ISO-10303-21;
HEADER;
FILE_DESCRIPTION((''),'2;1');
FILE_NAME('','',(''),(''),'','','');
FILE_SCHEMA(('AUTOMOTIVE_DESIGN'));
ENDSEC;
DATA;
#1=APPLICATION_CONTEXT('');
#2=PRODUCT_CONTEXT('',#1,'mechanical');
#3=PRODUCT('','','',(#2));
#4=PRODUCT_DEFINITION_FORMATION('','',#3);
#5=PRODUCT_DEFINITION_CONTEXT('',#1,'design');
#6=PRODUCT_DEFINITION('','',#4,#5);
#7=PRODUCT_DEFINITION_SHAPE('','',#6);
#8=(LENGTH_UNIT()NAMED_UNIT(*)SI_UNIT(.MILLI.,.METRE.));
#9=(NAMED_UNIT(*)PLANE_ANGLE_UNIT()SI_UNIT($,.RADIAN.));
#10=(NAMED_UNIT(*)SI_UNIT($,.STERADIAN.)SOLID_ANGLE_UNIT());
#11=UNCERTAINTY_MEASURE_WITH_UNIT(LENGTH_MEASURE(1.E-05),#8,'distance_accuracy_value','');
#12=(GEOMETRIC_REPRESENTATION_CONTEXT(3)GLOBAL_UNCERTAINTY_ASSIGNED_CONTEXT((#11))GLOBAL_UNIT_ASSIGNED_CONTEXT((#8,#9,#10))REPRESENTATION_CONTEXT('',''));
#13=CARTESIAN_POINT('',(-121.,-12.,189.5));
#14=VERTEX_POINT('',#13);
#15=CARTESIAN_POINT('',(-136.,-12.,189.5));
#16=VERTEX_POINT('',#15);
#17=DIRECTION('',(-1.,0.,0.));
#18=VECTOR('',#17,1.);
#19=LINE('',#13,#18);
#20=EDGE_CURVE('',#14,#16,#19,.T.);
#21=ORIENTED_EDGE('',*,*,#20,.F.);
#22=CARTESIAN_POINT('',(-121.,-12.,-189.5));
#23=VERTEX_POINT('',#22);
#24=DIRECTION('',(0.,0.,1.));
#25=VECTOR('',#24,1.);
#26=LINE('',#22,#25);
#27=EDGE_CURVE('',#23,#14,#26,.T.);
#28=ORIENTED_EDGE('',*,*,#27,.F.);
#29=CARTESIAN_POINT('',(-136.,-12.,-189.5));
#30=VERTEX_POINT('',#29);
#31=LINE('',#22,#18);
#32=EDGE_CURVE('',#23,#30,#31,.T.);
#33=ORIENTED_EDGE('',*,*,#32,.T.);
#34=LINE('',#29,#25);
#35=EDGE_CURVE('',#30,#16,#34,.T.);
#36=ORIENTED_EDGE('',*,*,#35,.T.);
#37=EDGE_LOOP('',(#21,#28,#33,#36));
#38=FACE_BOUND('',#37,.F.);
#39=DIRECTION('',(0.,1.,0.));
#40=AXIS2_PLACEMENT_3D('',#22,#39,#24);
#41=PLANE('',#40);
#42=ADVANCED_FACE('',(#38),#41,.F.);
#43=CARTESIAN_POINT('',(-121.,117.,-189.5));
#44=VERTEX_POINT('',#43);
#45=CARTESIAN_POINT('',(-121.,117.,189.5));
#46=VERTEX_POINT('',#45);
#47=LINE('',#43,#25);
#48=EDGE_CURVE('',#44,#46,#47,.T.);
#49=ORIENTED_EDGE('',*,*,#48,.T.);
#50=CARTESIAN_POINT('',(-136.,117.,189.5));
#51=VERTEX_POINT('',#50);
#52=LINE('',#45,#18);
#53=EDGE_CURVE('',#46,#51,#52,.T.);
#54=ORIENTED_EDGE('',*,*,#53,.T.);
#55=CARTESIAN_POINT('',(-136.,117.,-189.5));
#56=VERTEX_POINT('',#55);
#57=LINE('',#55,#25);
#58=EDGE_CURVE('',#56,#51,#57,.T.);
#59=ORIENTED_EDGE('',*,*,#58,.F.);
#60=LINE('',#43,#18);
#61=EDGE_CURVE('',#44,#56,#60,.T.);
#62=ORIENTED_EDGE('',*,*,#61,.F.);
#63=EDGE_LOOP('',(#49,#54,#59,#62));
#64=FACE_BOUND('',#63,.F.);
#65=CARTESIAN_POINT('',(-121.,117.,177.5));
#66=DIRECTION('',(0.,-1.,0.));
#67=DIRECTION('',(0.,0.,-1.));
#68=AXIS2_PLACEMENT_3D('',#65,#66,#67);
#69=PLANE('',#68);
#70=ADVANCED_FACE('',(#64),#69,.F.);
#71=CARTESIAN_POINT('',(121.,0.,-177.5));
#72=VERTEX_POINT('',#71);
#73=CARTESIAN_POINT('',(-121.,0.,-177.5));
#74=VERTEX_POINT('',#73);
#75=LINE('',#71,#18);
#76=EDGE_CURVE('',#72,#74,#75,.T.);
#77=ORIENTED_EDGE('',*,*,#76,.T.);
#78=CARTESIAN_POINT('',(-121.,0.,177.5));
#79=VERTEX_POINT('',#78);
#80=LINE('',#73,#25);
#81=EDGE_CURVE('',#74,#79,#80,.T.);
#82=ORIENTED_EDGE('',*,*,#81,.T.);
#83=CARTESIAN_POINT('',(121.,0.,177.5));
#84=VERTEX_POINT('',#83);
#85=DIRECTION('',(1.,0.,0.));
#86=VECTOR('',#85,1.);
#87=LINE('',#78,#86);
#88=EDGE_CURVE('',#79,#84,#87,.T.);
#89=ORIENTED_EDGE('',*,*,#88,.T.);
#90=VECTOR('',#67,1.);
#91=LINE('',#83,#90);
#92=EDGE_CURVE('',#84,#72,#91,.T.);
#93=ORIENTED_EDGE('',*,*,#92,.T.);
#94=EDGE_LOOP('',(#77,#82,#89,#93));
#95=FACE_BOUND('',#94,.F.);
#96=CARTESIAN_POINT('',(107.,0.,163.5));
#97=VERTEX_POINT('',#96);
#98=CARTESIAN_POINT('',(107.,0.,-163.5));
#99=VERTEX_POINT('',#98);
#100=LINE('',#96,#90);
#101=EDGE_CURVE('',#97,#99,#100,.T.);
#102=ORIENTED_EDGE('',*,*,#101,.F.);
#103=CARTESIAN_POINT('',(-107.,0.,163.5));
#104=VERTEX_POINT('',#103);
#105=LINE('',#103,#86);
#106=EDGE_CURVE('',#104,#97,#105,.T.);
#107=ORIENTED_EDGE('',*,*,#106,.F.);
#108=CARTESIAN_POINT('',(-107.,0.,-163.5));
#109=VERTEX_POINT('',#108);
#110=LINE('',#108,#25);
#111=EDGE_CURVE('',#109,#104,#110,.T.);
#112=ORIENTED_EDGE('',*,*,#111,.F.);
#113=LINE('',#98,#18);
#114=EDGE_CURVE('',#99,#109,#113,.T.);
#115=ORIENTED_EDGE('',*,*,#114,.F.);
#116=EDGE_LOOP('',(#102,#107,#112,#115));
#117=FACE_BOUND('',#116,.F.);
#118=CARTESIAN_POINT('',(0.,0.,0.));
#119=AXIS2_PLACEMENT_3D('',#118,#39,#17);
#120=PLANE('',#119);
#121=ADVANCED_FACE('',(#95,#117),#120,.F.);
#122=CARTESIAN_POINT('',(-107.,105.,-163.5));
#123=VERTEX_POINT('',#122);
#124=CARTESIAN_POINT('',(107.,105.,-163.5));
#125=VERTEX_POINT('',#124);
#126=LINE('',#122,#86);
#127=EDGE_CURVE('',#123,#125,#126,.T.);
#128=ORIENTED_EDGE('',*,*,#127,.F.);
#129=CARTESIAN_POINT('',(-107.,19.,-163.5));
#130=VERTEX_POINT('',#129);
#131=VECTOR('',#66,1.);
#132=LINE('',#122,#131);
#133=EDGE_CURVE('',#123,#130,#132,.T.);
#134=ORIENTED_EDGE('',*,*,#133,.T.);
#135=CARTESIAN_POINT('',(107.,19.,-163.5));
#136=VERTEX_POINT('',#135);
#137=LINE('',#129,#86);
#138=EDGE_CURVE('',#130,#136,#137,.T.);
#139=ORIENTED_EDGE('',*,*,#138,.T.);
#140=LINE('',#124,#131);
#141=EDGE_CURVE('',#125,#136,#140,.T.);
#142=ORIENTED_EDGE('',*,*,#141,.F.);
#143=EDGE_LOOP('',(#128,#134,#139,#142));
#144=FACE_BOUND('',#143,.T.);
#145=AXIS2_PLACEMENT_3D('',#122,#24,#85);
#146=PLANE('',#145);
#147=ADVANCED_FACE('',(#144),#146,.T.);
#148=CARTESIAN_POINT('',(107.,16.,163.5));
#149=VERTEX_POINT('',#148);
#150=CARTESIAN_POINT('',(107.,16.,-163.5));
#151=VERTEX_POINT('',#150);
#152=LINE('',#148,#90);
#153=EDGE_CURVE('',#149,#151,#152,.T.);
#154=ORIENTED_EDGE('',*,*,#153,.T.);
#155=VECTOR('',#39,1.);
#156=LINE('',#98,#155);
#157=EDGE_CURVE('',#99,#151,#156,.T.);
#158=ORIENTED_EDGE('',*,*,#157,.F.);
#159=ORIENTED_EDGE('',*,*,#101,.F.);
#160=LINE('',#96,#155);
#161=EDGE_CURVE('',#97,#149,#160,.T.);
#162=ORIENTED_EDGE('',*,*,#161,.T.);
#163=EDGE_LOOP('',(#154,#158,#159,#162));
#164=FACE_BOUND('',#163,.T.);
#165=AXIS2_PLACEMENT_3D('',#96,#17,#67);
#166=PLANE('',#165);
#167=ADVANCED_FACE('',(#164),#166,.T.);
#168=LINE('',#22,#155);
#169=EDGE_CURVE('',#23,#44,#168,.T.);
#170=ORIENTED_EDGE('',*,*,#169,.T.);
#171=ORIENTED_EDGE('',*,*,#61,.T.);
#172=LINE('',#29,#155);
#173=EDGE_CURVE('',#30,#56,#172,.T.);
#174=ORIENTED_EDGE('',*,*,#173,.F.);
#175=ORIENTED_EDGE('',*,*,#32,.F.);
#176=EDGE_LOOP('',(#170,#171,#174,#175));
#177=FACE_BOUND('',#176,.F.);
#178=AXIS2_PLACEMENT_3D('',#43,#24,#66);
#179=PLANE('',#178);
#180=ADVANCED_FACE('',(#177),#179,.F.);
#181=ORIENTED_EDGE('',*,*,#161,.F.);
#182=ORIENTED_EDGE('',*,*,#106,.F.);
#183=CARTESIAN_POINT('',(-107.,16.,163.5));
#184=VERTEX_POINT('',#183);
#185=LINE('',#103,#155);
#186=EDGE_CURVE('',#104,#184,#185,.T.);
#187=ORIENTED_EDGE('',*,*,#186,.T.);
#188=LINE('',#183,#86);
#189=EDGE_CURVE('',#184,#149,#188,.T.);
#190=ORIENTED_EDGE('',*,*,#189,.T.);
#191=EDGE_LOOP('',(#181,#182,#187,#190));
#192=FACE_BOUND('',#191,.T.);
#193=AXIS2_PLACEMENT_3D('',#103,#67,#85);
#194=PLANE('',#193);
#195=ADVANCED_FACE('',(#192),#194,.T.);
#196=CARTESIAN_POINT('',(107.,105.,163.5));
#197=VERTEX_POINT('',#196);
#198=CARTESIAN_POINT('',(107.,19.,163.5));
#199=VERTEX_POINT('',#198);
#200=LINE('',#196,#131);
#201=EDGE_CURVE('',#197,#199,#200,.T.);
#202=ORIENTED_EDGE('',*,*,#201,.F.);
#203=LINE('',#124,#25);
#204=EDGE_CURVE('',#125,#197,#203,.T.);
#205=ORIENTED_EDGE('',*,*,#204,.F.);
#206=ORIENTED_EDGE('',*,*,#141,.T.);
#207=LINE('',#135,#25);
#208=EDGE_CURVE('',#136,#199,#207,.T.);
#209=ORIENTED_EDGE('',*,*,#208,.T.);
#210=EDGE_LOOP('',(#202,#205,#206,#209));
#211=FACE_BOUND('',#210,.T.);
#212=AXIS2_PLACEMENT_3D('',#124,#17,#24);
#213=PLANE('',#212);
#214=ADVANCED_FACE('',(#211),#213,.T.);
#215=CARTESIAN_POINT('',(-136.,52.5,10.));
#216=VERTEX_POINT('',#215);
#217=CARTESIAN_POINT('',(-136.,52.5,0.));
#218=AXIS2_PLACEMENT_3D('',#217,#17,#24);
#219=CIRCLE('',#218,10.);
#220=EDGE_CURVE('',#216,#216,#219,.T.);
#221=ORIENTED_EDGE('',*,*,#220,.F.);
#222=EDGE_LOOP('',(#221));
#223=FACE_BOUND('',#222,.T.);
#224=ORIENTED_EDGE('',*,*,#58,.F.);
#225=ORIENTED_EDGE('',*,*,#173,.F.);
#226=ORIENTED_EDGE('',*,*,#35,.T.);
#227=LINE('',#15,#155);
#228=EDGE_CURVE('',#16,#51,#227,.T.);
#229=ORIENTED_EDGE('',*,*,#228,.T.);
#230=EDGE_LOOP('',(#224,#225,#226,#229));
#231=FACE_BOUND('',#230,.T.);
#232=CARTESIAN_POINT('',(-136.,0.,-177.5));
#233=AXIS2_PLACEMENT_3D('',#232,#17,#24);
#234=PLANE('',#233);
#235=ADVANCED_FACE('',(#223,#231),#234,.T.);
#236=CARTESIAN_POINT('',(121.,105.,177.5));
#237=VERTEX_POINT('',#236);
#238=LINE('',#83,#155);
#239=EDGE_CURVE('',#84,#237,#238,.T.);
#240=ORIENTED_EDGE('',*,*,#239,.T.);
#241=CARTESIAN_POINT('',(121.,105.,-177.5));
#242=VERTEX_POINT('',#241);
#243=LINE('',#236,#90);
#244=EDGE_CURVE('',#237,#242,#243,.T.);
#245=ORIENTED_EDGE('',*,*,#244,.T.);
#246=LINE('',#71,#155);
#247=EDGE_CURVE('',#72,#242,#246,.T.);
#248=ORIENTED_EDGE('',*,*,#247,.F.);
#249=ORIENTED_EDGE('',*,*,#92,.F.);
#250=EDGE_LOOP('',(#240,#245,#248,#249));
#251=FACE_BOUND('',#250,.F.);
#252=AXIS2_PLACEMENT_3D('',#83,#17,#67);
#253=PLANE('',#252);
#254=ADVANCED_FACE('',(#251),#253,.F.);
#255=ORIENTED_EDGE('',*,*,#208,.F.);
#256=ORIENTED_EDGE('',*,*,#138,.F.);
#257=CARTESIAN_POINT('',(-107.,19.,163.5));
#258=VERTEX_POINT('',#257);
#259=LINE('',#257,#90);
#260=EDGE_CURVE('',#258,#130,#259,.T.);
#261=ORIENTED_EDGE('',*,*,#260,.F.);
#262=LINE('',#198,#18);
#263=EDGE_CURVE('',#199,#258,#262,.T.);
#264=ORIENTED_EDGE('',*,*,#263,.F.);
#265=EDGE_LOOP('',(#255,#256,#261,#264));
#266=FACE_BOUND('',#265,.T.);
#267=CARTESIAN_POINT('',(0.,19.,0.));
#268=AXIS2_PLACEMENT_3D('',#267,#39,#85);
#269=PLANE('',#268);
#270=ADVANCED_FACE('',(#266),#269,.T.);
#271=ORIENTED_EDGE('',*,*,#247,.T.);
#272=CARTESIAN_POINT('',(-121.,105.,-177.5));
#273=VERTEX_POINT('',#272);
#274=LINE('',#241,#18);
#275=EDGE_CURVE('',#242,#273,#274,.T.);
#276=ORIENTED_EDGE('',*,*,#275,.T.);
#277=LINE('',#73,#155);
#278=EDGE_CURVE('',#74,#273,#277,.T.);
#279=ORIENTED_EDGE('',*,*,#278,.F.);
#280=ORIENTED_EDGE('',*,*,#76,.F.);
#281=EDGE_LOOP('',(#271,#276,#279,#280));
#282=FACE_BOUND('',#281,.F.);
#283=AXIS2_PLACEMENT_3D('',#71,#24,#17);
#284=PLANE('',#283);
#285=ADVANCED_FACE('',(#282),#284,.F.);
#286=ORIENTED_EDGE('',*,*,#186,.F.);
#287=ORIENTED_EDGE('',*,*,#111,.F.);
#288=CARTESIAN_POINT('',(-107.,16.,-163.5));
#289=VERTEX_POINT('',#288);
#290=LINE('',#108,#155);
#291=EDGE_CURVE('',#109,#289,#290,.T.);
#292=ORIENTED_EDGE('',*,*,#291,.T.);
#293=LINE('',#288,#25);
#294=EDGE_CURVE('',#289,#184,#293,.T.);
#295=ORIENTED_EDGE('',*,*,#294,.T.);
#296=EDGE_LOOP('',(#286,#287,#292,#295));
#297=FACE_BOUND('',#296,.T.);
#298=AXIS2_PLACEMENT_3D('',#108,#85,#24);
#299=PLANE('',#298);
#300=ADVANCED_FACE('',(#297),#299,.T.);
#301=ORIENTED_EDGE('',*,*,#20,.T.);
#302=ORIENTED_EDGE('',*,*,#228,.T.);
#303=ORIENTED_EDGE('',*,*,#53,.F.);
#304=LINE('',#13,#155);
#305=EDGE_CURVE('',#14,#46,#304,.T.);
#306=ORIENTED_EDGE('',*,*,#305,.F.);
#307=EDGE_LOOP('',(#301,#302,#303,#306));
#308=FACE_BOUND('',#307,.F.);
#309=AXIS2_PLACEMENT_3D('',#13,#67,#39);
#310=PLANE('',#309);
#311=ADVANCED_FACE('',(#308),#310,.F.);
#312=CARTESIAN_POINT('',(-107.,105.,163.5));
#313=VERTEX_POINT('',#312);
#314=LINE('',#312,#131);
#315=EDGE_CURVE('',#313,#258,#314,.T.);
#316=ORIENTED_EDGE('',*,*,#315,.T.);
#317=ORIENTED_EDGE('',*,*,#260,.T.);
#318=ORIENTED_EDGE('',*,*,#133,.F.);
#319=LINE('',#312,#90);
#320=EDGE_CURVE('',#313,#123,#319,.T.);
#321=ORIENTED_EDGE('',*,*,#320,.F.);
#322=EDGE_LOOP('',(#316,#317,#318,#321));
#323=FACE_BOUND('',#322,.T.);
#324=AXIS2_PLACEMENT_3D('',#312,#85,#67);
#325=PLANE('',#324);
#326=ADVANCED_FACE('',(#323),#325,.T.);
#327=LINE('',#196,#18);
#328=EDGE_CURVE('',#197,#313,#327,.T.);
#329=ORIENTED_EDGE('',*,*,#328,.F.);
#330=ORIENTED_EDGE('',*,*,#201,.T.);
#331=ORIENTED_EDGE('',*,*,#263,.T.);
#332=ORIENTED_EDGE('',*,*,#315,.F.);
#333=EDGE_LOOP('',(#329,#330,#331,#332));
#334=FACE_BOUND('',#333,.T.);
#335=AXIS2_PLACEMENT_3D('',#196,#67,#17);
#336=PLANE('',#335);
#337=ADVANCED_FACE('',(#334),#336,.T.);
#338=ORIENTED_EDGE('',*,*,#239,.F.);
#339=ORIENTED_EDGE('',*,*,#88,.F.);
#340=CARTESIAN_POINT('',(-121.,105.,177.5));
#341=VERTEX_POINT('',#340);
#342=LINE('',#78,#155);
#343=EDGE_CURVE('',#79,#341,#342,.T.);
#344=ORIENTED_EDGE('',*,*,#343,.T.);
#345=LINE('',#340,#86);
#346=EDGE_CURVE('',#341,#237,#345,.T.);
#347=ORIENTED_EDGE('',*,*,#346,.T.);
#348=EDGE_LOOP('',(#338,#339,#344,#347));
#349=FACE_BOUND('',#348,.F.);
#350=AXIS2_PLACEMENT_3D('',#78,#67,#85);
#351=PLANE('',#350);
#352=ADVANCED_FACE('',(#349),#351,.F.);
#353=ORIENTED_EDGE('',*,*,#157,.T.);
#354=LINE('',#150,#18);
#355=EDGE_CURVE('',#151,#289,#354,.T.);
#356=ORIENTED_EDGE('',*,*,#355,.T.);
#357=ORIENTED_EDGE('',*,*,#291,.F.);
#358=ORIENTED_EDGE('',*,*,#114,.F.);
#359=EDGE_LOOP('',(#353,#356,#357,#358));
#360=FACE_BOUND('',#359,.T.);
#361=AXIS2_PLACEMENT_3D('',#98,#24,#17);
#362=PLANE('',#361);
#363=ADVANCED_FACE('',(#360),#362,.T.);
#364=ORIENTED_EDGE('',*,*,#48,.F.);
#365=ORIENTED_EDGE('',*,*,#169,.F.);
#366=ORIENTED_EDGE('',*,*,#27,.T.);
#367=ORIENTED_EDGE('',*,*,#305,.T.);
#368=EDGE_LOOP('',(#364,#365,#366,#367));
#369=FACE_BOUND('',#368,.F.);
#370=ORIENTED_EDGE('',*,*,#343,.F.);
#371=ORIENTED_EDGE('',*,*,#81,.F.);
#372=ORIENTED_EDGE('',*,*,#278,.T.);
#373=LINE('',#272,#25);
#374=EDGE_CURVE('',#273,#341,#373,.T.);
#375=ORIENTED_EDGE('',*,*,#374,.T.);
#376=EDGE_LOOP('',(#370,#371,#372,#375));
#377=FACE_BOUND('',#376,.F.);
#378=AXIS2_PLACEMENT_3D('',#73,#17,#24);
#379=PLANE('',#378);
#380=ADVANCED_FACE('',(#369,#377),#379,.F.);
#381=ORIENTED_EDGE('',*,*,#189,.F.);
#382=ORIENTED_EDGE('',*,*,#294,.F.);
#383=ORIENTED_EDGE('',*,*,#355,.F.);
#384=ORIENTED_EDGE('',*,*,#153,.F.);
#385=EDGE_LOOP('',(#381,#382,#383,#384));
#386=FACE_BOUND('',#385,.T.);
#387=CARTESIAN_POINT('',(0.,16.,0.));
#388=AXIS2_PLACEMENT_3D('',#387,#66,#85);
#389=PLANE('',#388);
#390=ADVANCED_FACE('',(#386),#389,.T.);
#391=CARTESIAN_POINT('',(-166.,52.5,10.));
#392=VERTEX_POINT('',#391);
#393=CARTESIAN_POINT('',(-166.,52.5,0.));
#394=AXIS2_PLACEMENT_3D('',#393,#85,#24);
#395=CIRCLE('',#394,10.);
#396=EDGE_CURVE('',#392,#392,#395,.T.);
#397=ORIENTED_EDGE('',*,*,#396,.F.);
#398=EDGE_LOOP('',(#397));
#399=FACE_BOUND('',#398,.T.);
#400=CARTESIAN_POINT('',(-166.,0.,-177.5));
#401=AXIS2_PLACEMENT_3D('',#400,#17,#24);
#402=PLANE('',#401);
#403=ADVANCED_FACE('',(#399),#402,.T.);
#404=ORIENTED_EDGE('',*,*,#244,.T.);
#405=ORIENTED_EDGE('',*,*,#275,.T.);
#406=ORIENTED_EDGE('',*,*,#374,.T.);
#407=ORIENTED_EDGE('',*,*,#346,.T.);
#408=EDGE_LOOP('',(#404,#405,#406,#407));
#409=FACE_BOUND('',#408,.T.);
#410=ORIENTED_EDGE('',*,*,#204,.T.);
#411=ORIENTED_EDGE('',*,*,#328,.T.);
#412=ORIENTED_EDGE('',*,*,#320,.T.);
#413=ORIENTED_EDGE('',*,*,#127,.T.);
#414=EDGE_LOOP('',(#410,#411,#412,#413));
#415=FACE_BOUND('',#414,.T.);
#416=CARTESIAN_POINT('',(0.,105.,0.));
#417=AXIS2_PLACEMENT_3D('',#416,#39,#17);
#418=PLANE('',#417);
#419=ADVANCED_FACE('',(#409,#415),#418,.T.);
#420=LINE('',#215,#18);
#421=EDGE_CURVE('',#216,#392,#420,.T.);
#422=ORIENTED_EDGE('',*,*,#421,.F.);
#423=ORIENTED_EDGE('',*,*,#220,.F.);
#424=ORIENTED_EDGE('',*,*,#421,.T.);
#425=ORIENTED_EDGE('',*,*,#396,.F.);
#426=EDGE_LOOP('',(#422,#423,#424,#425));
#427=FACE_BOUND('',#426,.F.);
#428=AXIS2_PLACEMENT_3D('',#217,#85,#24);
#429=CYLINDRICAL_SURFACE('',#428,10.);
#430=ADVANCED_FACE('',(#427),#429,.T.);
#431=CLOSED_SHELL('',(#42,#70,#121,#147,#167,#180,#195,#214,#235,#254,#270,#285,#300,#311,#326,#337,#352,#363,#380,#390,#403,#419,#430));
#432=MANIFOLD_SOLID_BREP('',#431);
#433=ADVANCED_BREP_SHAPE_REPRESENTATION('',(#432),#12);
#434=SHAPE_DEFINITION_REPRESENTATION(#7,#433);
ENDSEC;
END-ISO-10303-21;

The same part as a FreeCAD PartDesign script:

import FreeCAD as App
import Part
import Sketcher


def add_polygon(sketch, points):
    """Adds a closed chain of lines whose ends are joined by coincident constraints."""
    first, n = sketch.GeometryCount, len(points)
    for a, b in zip(points, points[1:] + points[:1]):
        sketch.addGeometry(Part.LineSegment(App.Vector(*a, 0), App.Vector(*b, 0)), False)
    for i in range(n):
        sketch.addConstraint(Sketcher.Constraint("Coincident", first + i, 2, first + (i + 1) % n, 1))

doc = App.newDocument("Part")
body = doc.addObject("PartDesign::Body", "Body")

# Sketch on XZ plane
sketch1 = body.newObject("Sketcher::SketchObject", "Sketch")
sketch1.AttachmentSupport = (doc.getObject("XZ_Plane"), [""])
sketch1.MapMode = "FlatFace"
add_polygon(sketch1, [(121, 177.5), (121, -177.5), (-121, -177.5), (-121, 177.5)])  # lines 0-3
sketch1.addConstraint(Sketcher.Constraint("Vertical", 0))
sketch1.addConstraint(Sketcher.Constraint("Horizontal", 1))
sketch1.addConstraint(Sketcher.Constraint("Vertical", 2))
sketch1.addConstraint(Sketcher.Constraint("Horizontal", 3))
sketch1.addConstraint(Sketcher.Constraint("Symmetric", 0, 2, 2, 2, -1, 1))
sketch1.addConstraint(Sketcher.Constraint("DistanceX", 1, 2, 1, 1, 242.0))
sketch1.addConstraint(Sketcher.Constraint("DistanceY", 0, 2, 0, 1, 355.0))
pad1 = body.newObject("PartDesign::Pad", "Pad")
pad1.Profile = sketch1
pad1.Length = 105
pad1.Reversed = True

# Sketch on XZ plane
sketch2 = body.newObject("Sketcher::SketchObject", "Sketch001")
sketch2.AttachmentSupport = (doc.getObject("XZ_Plane"), [""])
sketch2.MapMode = "FlatFace"
sketch2.AttachmentOffset = App.Placement(App.Vector(0, 0, -105), App.Rotation())
add_polygon(sketch2, [(-107, 163.5), (107, 163.5), (107, -163.5), (-107, -163.5)])  # lines 0-3
sketch2.addConstraint(Sketcher.Constraint("Horizontal", 0))
sketch2.addConstraint(Sketcher.Constraint("Vertical", 1))
sketch2.addConstraint(Sketcher.Constraint("Horizontal", 2))
sketch2.addConstraint(Sketcher.Constraint("Vertical", 3))
sketch2.addConstraint(Sketcher.Constraint("Symmetric", 0, 2, 2, 2, -1, 1))
sketch2.addConstraint(Sketcher.Constraint("DistanceX", 0, 1, 0, 2, 214.0))
sketch2.addConstraint(Sketcher.Constraint("DistanceY", 1, 2, 1, 1, 327.0))
pocket1 = body.newObject("PartDesign::Pocket", "Pocket")
pocket1.Profile = sketch2
pocket1.Length = 86
pocket1.Reversed = True

# Sketch on XZ plane
sketch3 = body.newObject("Sketcher::SketchObject", "Sketch002")
sketch3.AttachmentSupport = (doc.getObject("XZ_Plane"), [""])
sketch3.MapMode = "FlatFace"
add_polygon(sketch3, [(107, -163.5), (107, 163.5), (-107, 163.5), (-107, -163.5)])  # lines 0-3
sketch3.addConstraint(Sketcher.Constraint("Vertical", 0))
sketch3.addConstraint(Sketcher.Constraint("Horizontal", 1))
sketch3.addConstraint(Sketcher.Constraint("Vertical", 2))
sketch3.addConstraint(Sketcher.Constraint("Horizontal", 3))
sketch3.addConstraint(Sketcher.Constraint("Symmetric", 0, 2, 2, 2, -1, 1))
sketch3.addConstraint(Sketcher.Constraint("DistanceX", 1, 2, 1, 1, 214.0))
sketch3.addConstraint(Sketcher.Constraint("DistanceY", 0, 1, 0, 2, 327.0))
pocket2 = body.newObject("PartDesign::Pocket", "Pocket001")
pocket2.Profile = sketch3
pocket2.Length = 16

# Sketch on YZ plane
sketch4 = body.newObject("Sketcher::SketchObject", "Sketch003")
sketch4.AttachmentSupport = (doc.getObject("YZ_Plane"), [""])
sketch4.MapMode = "FlatFace"
sketch4.AttachmentOffset = App.Placement(App.Vector(0, 0, -121), App.Rotation())
add_polygon(sketch4, [(117, -189.5), (-12, -189.5), (-12, 189.5), (117, 189.5)])  # lines 0-3
sketch4.addConstraint(Sketcher.Constraint("Horizontal", 0))
sketch4.addConstraint(Sketcher.Constraint("Vertical", 1))
sketch4.addConstraint(Sketcher.Constraint("Horizontal", 2))
sketch4.addConstraint(Sketcher.Constraint("Vertical", 3))
sketch4.addConstraint(Sketcher.Constraint("DistanceX", 0, 2, -1, 1, 12.0))
sketch4.addConstraint(Sketcher.Constraint("DistanceX", 0, 2, 0, 1, 129.0))
sketch4.addConstraint(Sketcher.Constraint("DistanceY", 1, 1, 1, 2, 379.0))
sketch4.addConstraint(Sketcher.Constraint("DistanceY", 0, 2, -1, 1, 189.5))
pad2 = body.newObject("PartDesign::Pad", "Pad001")
pad2.Profile = sketch4
pad2.Length = 15
pad2.Reversed = True

# Sketch on YZ plane
sketch5 = body.newObject("Sketcher::SketchObject", "Sketch004")
sketch5.AttachmentSupport = (doc.getObject("YZ_Plane"), [""])
sketch5.MapMode = "FlatFace"
sketch5.AttachmentOffset = App.Placement(App.Vector(0, 0, -136), App.Rotation())
sketch5.addGeometry(Part.Circle(App.Vector(52.5, 0, 0), App.Vector(0, 0, 1), 10), False)
sketch5.addConstraint(Sketcher.Constraint("PointOnObject", 0, 3, -1))
sketch5.addConstraint(Sketcher.Constraint("Diameter", 0, 20.0))
sketch5.addConstraint(Sketcher.Constraint("DistanceX", -1, 1, 0, 3, 52.5))
pad3 = body.newObject("PartDesign::Pad", "Pad002")
pad3.Profile = sketch5
pad3.Length = 30
pad3.Reversed = True

doc.recompute()
